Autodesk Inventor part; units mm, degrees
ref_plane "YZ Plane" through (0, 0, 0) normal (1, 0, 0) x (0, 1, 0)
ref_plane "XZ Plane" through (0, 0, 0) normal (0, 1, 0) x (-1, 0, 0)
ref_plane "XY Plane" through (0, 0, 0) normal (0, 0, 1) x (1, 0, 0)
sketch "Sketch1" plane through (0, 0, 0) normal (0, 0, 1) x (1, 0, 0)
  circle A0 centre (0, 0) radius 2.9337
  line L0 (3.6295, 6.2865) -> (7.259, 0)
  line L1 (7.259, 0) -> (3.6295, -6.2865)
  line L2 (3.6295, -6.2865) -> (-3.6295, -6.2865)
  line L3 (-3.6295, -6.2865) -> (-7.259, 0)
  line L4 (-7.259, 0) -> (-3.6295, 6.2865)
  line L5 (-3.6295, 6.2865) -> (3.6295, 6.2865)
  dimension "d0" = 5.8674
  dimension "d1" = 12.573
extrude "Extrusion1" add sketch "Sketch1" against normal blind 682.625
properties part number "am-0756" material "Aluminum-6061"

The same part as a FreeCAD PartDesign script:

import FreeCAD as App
import Part
import Sketcher
Q = App.Units.Quantity


def add_polygon(sketch, points):
    """Adds a closed chain of lines whose ends are joined by coincident constraints."""
    first, n = sketch.GeometryCount, len(points)
    for a, b in zip(points, points[1:] + points[:1]):
        sketch.addGeometry(Part.LineSegment(App.Vector(*a, 0), App.Vector(*b, 0)), False)
    for i in range(n):
        sketch.addConstraint(Sketcher.Constraint("Coincident", first + i, 2, first + (i + 1) % n, 1))

doc = App.newDocument("Part")
body = doc.addObject("PartDesign::Body", "Body")

sketch1 = doc.addObject("Sketcher::SketchObject", "Sketch")
body.addObject(sketch1)
sketch1.AttachmentSupport = (doc.XY_Plane, [""])
sketch1.MapMode = "FlatFace"
add_polygon(sketch1, [(7.3, 0), (3.6, 6.3), (-3.6, 6.3), (-7.3, 0), (-3.6, -6.3), (3.6, -6.3)])
sketch1.addGeometry(Part.Circle(App.Vector(0, 0, 0), App.Vector(0, 0, 1), 2.9), False)
sketch1.addConstraint([
    Sketcher.Constraint("Horizontal", 1),
    Sketcher.Constraint("Horizontal", 4),
    Sketcher.Constraint("Coincident", 6, 3, -1, 1),
    Sketcher.Constraint("Symmetric", 0, 2, 3, 2, -1, 1),
    Sketcher.Constraint("Symmetric", 2, 2, 5, 2, -1, 1),
    Sketcher.Constraint("PointOnObject", 2, 2, -1),
    Sketcher.Constraint("Parallel", 2, 5),
    Sketcher.Constraint("Vertical", 1, 2, 3, 2),
    Sketcher.Constraint("Diameter", 6, Q("0.231 in")),
    Sketcher.Constraint("Angle", 0, Q("120 deg")),
    Sketcher.Constraint("DistanceY", 3, 2, 1, 2, Q("0.495 in")),
    Sketcher.Constraint("DistanceX", 1, 2, 1, 1, 7.259),
])
pad1 = doc.addObject("PartDesign::Pad", "Pad")
body.addObject(pad1)
pad1.Profile = sketch1
pad1.Length = Q("26.875 in")
pad1.Reversed = True

doc.recompute()
